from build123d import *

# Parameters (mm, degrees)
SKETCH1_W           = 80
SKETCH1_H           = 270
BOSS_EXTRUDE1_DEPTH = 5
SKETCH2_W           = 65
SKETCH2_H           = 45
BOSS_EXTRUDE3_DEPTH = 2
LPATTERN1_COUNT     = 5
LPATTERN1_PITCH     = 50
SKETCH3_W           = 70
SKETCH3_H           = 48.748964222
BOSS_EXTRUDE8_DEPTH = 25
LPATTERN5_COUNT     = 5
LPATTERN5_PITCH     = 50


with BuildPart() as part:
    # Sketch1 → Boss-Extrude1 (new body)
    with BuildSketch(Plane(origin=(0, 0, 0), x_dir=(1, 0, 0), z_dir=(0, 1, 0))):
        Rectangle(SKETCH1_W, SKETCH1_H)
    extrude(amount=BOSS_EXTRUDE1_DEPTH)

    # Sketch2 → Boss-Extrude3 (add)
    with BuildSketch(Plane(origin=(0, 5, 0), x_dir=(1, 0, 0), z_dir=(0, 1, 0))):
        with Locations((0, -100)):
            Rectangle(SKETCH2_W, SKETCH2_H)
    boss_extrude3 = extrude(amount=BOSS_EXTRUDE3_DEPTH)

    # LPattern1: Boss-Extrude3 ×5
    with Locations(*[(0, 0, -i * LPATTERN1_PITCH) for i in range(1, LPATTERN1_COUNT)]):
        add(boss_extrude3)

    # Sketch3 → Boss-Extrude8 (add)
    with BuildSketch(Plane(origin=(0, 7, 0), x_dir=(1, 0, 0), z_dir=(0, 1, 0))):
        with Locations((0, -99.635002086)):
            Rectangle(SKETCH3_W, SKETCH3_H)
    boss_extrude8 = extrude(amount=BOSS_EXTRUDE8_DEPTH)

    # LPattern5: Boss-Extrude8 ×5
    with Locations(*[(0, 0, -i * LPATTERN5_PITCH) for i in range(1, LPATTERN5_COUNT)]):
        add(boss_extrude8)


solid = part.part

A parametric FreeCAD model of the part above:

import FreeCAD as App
import Part
import Sketcher


def add_polygon(sketch, points):
    """Adds a closed chain of lines whose ends are joined by coincident constraints."""
    first, n = sketch.GeometryCount, len(points)
    for a, b in zip(points, points[1:] + points[:1]):
        sketch.addGeometry(Part.LineSegment(App.Vector(*a, 0), App.Vector(*b, 0)), False)
    for i in range(n):
        sketch.addConstraint(Sketcher.Constraint("Coincident", first + i, 2, first + (i + 1) % n, 1))

doc = App.newDocument("Part")
params = doc.addObject("Spreadsheet::Sheet", "Params")
for row, (alias, value) in enumerate([
    ("sketch1_width", "80 mm"),
    ("sketch1_height", "270 mm"),
    ("pad1_length", "5 mm"),
    ("sketch2_width", "65 mm"),
    ("sketch2_height", "45 mm"),
    ("pad2_length", "2 mm"),
    ("linearpattern_pitch", "50 mm"),
    ("sketch3_width", "70 mm"),
    ("pad3_length", "25 mm"),
    ("linearpattern2_pitch", "50 mm"),
], start=1):
    params.set(f"A{row}", alias)
    params.set(f"B{row}", "=" + value)
    params.setAlias(f"B{row}", alias)

body = doc.addObject("PartDesign::Body", "Body")

# Sketch on XZ plane
sketch1 = body.newObject("Sketcher::SketchObject", "Sketch")
sketch1.AttachmentSupport = (doc.getObject("XZ_Plane"), [""])
sketch1.MapMode = "FlatFace"
add_polygon(sketch1, [(-40, -135), (-40, 135), (40, 135), (40, -135)])  # lines 0-3
sketch1.addConstraint([
    Sketcher.Constraint("Vertical", 0),
    Sketcher.Constraint("Horizontal", 1),
    Sketcher.Constraint("Vertical", 2),
    Sketcher.Constraint("Horizontal", 3),
    Sketcher.Constraint("Symmetric", 0, 2, 2, 2, -1, 1),
    Sketcher.Constraint("DistanceX", 1, 1, 1, 2, 80.0),
    Sketcher.Constraint("DistanceY", 0, 1, 0, 2, 270.0),
])
sketch1.setExpression("Constraints[9]", "Params.sketch1_width")
sketch1.setExpression("Constraints[10]", "Params.sketch1_height")
pad1 = body.newObject("PartDesign::Pad", "Pad")
pad1.Profile = sketch1
pad1.setExpression("Length", "Params.pad1_length")
pad1.Reversed = True

# Sketch on XZ plane
sketch2 = body.newObject("Sketcher::SketchObject", "Sketch001")
sketch2.AttachmentSupport = (doc.getObject("XZ_Plane"), [""])
sketch2.MapMode = "FlatFace"
sketch2.AttachmentOffset = App.Placement(App.Vector(0, 0, -5), App.Rotation())
add_polygon(sketch2, [(-32, 78), (-32, 122), (32, 122), (32, 78)])  # lines 0-3
sketch2.addConstraint([
    Sketcher.Constraint("Vertical", 0),
    Sketcher.Constraint("Horizontal", 1),
    Sketcher.Constraint("Vertical", 2),
    Sketcher.Constraint("Horizontal", 3),
    Sketcher.Constraint("DistanceX", 1, 1, 1, 2, 65.0),
    Sketcher.Constraint("DistanceY", 0, 1, 0, 2, 45.0),
    Sketcher.Constraint("DistanceX", 0, 2, -1, 1, 32.5),
    Sketcher.Constraint("DistanceY", -1, 1, 0, 2, 122.5),
])
sketch2.setExpression("Constraints[8]", "Params.sketch2_width")
sketch2.setExpression("Constraints[9]", "Params.sketch2_height")
pad2 = body.newObject("PartDesign::Pad", "Pad001")
pad2.Profile = sketch2
pad2.setExpression("Length", "Params.pad2_length")
pad2.Reversed = True
doc.recompute()

linearpattern = body.newObject("PartDesign::LinearPattern", "LinearPattern")
linearpattern.Originals = [pad2]
linearpattern.Direction = (doc.getObject("Z_Axis"), [""])
linearpattern.Mode = "offset"
linearpattern.setExpression("Offset", "Params.linearpattern_pitch")
linearpattern.Occurrences = 5
linearpattern.Reversed = True
body.Tip = linearpattern

# Sketch on XZ plane
sketch3 = body.newObject("Sketcher::SketchObject", "Sketch002")
sketch3.AttachmentSupport = (doc.getObject("XZ_Plane"), [""])
sketch3.MapMode = "FlatFace"
sketch3.AttachmentOffset = App.Placement(App.Vector(0, 0, -7), App.Rotation())
add_polygon(sketch3, [(-35, 75), (-35, 124), (35, 124), (35, 75)])  # lines 0-3
sketch3.addConstraint([
    Sketcher.Constraint("Vertical", 0),
    Sketcher.Constraint("Horizontal", 1),
    Sketcher.Constraint("Vertical", 2),
    Sketcher.Constraint("Horizontal", 3),
    Sketcher.Constraint("DistanceX", 1, 1, 1, 2, 70.0),
    Sketcher.Constraint("DistanceX", 0, 2, -1, 1, 35.0),
    Sketcher.Constraint("DistanceY", 0, 1, 0, 2, 48.748964),
    Sketcher.Constraint("DistanceY", -1, 1, 2, 2, 75.26052),
])
sketch3.setExpression("Constraints[8]", "Params.sketch3_width")
pad3 = body.newObject("PartDesign::Pad", "Pad002")
pad3.Profile = sketch3
pad3.setExpression("Length", "Params.pad3_length")
pad3.Reversed = True
doc.recompute()

linearpattern2 = body.newObject("PartDesign::LinearPattern", "LinearPattern001")
linearpattern2.Originals = [pad3]
linearpattern2.Direction = (doc.getObject("Z_Axis"), [""])
linearpattern2.Mode = "offset"
linearpattern2.setExpression("Offset", "Params.linearpattern2_pitch")
linearpattern2.Occurrences = 5
linearpattern2.Reversed = True
body.Tip = linearpattern2

doc.recompute()
